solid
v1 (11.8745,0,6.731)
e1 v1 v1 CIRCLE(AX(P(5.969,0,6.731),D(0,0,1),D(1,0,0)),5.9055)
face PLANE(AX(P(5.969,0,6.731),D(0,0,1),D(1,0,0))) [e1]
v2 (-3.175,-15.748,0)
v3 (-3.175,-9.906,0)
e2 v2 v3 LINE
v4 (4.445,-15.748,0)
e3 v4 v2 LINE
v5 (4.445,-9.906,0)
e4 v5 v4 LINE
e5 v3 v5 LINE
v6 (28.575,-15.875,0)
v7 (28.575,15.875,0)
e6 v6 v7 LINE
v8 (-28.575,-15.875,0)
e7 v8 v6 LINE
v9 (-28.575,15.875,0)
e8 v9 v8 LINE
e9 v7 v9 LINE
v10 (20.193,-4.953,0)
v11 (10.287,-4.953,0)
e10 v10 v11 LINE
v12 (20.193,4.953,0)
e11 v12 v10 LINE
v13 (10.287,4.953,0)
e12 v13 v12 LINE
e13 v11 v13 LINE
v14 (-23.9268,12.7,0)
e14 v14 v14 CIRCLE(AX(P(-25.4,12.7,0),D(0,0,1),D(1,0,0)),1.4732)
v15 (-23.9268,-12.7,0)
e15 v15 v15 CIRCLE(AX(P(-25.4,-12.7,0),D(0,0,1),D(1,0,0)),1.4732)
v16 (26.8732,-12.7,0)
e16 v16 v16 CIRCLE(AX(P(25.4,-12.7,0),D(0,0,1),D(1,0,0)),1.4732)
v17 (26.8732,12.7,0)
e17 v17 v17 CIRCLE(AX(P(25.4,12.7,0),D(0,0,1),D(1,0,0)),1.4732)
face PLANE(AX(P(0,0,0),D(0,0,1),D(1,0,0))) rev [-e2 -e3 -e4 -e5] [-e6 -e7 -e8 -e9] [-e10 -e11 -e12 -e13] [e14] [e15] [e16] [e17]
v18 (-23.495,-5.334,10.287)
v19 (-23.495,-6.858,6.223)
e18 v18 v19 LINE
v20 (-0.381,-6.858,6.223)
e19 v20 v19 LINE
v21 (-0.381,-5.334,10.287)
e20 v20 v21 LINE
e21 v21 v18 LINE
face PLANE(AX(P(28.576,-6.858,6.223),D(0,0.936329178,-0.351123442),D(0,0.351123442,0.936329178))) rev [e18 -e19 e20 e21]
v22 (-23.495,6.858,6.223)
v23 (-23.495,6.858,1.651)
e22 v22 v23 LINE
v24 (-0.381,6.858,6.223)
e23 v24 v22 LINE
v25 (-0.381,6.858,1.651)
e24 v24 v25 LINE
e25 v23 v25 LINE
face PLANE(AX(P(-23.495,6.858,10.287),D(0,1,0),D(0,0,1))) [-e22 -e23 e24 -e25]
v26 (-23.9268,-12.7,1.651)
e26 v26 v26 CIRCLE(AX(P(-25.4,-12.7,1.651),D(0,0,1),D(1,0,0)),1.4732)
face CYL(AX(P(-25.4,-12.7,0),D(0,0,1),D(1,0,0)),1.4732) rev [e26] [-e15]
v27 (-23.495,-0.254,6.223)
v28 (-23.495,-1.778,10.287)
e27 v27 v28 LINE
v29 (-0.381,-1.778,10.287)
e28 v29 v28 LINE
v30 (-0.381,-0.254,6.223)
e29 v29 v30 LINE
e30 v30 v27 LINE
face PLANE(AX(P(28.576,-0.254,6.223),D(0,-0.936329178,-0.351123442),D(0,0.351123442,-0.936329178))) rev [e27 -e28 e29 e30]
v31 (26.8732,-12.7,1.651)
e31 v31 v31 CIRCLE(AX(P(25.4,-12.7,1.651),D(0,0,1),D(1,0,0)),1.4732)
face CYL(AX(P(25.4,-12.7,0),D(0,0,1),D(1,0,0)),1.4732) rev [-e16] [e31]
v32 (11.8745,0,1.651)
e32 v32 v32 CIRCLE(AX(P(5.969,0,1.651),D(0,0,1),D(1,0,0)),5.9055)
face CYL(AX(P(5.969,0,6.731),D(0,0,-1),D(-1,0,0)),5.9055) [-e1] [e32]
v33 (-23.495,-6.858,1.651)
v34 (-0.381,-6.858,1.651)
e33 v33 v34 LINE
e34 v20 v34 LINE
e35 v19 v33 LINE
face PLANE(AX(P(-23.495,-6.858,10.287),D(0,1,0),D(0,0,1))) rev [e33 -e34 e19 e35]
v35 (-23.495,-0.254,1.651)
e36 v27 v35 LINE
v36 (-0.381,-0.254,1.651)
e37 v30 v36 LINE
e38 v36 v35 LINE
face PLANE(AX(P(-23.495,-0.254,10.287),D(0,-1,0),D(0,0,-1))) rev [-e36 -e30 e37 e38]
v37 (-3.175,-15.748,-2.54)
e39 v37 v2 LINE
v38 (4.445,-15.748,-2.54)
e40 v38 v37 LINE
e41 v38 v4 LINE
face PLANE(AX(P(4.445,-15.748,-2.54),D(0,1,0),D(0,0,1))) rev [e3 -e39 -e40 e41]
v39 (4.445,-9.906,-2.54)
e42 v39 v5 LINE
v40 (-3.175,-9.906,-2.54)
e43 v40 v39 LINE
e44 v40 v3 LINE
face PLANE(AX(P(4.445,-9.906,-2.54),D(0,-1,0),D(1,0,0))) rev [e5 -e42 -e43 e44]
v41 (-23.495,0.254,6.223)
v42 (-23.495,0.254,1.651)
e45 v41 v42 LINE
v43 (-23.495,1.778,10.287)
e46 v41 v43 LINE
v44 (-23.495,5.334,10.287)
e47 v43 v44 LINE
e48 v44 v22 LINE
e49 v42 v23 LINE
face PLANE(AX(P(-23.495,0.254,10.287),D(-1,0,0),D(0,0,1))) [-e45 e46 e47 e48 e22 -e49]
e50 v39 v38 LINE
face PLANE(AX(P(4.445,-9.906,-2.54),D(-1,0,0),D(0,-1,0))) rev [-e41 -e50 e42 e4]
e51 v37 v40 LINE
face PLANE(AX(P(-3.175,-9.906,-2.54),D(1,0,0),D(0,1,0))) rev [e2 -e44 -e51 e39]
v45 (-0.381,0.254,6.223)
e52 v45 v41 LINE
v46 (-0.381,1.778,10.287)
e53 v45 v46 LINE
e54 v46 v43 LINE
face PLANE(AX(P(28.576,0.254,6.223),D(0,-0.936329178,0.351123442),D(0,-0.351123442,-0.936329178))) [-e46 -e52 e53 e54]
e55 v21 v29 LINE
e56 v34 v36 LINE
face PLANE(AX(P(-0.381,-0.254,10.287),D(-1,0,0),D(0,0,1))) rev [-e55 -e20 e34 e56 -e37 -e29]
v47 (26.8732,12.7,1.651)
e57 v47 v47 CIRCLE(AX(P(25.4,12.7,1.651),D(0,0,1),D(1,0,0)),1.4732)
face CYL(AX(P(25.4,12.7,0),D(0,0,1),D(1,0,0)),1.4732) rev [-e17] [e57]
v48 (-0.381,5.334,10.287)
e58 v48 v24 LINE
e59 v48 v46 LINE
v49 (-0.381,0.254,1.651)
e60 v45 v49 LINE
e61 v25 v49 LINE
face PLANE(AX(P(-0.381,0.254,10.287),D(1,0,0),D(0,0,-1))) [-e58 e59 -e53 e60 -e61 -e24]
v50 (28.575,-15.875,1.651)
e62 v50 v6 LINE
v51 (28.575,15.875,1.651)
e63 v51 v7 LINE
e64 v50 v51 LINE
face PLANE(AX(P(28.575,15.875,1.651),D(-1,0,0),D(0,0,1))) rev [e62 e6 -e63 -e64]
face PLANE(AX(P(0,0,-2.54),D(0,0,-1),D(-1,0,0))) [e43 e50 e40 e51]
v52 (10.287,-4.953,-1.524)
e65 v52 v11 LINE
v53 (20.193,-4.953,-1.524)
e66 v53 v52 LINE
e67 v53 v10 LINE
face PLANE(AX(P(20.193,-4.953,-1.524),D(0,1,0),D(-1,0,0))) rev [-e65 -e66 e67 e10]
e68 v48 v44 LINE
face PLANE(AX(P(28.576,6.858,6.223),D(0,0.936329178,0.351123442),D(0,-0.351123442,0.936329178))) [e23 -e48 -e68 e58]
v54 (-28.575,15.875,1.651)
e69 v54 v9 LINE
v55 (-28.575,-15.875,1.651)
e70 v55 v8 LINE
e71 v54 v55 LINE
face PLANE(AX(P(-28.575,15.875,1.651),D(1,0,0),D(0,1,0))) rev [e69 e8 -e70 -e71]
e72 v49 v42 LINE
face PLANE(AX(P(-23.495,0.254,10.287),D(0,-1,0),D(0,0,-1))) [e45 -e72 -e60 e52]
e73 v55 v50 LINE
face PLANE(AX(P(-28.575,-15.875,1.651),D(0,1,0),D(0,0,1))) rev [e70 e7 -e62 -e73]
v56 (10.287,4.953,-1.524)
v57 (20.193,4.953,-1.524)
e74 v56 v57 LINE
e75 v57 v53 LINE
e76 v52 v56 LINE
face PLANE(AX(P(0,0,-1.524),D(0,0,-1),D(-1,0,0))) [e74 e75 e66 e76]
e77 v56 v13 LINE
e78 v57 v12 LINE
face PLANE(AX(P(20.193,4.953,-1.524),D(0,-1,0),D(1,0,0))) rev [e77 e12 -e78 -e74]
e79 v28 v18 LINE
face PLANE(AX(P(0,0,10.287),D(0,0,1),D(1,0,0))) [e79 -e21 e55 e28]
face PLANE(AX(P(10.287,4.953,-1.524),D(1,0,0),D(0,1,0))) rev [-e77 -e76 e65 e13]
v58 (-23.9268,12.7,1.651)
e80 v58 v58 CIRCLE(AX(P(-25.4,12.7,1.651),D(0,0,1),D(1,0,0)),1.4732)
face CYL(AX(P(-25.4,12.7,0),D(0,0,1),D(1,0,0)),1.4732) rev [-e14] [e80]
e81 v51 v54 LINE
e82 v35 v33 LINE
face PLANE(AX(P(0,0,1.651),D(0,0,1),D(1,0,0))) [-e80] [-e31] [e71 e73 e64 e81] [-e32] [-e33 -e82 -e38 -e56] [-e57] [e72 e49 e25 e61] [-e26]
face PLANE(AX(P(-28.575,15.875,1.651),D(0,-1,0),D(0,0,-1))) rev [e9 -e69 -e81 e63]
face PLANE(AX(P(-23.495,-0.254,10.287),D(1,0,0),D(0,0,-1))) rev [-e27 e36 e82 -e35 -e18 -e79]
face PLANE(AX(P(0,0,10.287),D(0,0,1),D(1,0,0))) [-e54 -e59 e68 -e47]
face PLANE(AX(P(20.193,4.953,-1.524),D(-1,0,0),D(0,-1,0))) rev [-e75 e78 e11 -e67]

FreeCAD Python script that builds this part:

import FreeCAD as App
import Part
import Sketcher
from FreeCAD import Vector
Q = App.Units.Quantity

doc = App.newDocument("Part")
body = doc.addObject("PartDesign::Body", "Body")

# Sketch on XY plane
sketch1 = body.newObject("Sketcher::SketchObject", "Sketch")
sketch1.AttachmentSupport = (doc.getObject("XY_Plane"), [""])
sketch1.MapMode = "FlatFace"
sketch1.addGeometry(Part.LineSegment(Vector(-29, 16, 0), Vector(-29, -16, 0)), False)
sketch1.addGeometry(Part.LineSegment(Vector(-29, -16, 0), Vector(29, -16, 0)), False)
sketch1.addGeometry(Part.LineSegment(Vector(29, -16, 0), Vector(29, 16, 0)), False)
sketch1.addGeometry(Part.LineSegment(Vector(29, 16, 0), Vector(-29, 16, 0)), False)
sketch1.addConstraint(Sketcher.Constraint("Coincident", 0, 2, 1, 1))
sketch1.addConstraint(Sketcher.Constraint("Coincident", 1, 2, 2, 1))
sketch1.addConstraint(Sketcher.Constraint("Coincident", 2, 2, 3, 1))
sketch1.addConstraint(Sketcher.Constraint("Coincident", 3, 2, 0, 1))
sketch1.addConstraint(Sketcher.Constraint("Vertical", 0))
sketch1.addConstraint(Sketcher.Constraint("Horizontal", 1))
sketch1.addConstraint(Sketcher.Constraint("Vertical", 2))
sketch1.addConstraint(Sketcher.Constraint("Horizontal", 3))
sketch1.addConstraint(Sketcher.Constraint("Symmetric", 0, 2, 2, 2, -1, 1))
sketch1.addConstraint(Sketcher.Constraint("DistanceX", 1, 1, 1, 2, Q("2.25 in")))
sketch1.addConstraint(Sketcher.Constraint("DistanceY", 0, 2, 0, 1, Q("1.25 in")))
pad1 = body.newObject("PartDesign::Pad", "Pad")
pad1.Profile = sketch1
pad1.Length = Q("0.065 in")

# Sketch on XY plane
sketch2 = body.newObject("Sketcher::SketchObject", "Sketch001")
sketch2.AttachmentSupport = (doc.getObject("XY_Plane"), [""])
sketch2.MapMode = "FlatFace"
sketch2.AttachmentOffset = App.Placement(Vector(0, 0, 0.065 * 25.4), App.Rotation())
sketch2.addGeometry(Part.Circle(Vector(25.4, -12.7, 0), Vector(0, 0, 1), 1.5), False)
sketch2.addGeometry(Part.Circle(Vector(25.4, 12.7, 0), Vector(0, 0, 1), 1.5), False)
sketch2.addGeometry(Part.Circle(Vector(-25.4, 12.7, 0), Vector(0, 0, 1), 1.5), False)
sketch2.addGeometry(Part.Circle(Vector(-25.4, -12.7, 0), Vector(0, 0, 1), 1.5), False)
sketch2.addConstraint(Sketcher.Constraint("Equal", 0, 1))
sketch2.addConstraint(Sketcher.Constraint("Equal", 1, 2))
sketch2.addConstraint(Sketcher.Constraint("Equal", 2, 3))
sketch2.addConstraint(Sketcher.Constraint("Symmetric", 0, 3, 2, 3, -1, 1))
sketch2.addConstraint(Sketcher.Constraint("Symmetric", 1, 3, 3, 3, -1, 1))
sketch2.addConstraint(Sketcher.Constraint("Symmetric", 1, 3, 2, 3, -2))
sketch2.addConstraint(Sketcher.Constraint("Diameter", 0, Q("0.116 in")))
sketch2.addConstraint(Sketcher.Constraint("DistanceX", -1, 1, 0, 3, Q("1 in")))
sketch2.addConstraint(Sketcher.Constraint("DistanceY", 0, 3, 1, 3, Q("1 in")))
pocket1 = body.newObject("PartDesign::Pocket", "Pocket")
pocket1.Profile = sketch2
pocket1.Type = "ThroughAll"

# Sketch on XY plane
sketch3 = body.newObject("Sketcher::SketchObject", "Sketch002")
sketch3.AttachmentSupport = (doc.getObject("XY_Plane"), [""])
sketch3.MapMode = "FlatFace"
sketch3.AttachmentOffset = App.Placement(Vector(0, 0, 0.065 * 25.4), App.Rotation())
sketch3.addGeometry(Part.LineSegment(Vector(-23, 0, 0), Vector(-23, -7, 0)), False)
sketch3.addGeometry(Part.LineSegment(Vector(-23, -7, 0), Vector(0, -7, 0)), False)
sketch3.addGeometry(Part.LineSegment(Vector(0, -7, 0), Vector(0, 0, 0)), False)
sketch3.addGeometry(Part.LineSegment(Vector(0, 0, 0), Vector(-23, 0, 0)), False)
sketch3.addConstraint(Sketcher.Constraint("Coincident", 0, 2, 1, 1))
sketch3.addConstraint(Sketcher.Constraint("Coincident", 1, 2, 2, 1))
sketch3.addConstraint(Sketcher.Constraint("Coincident", 2, 2, 3, 1))
sketch3.addConstraint(Sketcher.Constraint("Coincident", 3, 2, 0, 1))
sketch3.addConstraint(Sketcher.Constraint("Vertical", 0))
sketch3.addConstraint(Sketcher.Constraint("Horizontal", 1))
sketch3.addConstraint(Sketcher.Constraint("Vertical", 2))
sketch3.addConstraint(Sketcher.Constraint("Horizontal", 3))
sketch3.addConstraint(Sketcher.Constraint("DistanceX", 1, 1, 1, 2, Q("0.91 in")))
sketch3.addConstraint(Sketcher.Constraint("DistanceY", 0, 2, 0, 1, Q("0.26 in")))
sketch3.addConstraint(Sketcher.Constraint("DistanceY", 0, 2, -1, 1, Q("0.27 in")))
sketch3.addConstraint(Sketcher.Constraint("DistanceX", 0, 2, -1, 1, Q("0.925 in")))
pad2 = body.newObject("PartDesign::Pad", "Pad001")
pad2.Profile = sketch3
pad2.Length = Q("0.34 in")

# Sketch on YZ plane
sketch4 = body.newObject("Sketcher::SketchObject", "Sketch003")
sketch4.AttachmentSupport = (doc.getObject("YZ_Plane"), [""])
sketch4.MapMode = "FlatFace"
sketch4.AttachmentOffset = App.Placement(Vector(0, 0, -0.925 * 25.4), App.Rotation())
sketch4.addGeometry(Part.LineSegment(Vector(-5.3, 10.3, 0), Vector(-6.9, 6.2, 0)), False)
sketch4.addGeometry(Part.LineSegment(Vector(-6.9, 6.2, 0), Vector(-6.9, 10.3, 0)), False)
sketch4.addGeometry(Part.LineSegment(Vector(-6.9, 10.3, 0), Vector(-5.3, 10.3, 0)), False)
sketch4.addGeometry(Part.LineSegment(Vector(-1.8, 10.3, 0), Vector(-0.3, 10.3, 0)), False)
sketch4.addGeometry(Part.LineSegment(Vector(-0.3, 10.3, 0), Vector(-0.3, 6.2, 0)), False)
sketch4.addGeometry(Part.LineSegment(Vector(-0.3, 6.2, 0), Vector(-1.8, 10.3, 0)), False)
sketch4.addConstraint(Sketcher.Constraint("Coincident", 0, 2, 1, 1))
sketch4.addConstraint(Sketcher.Constraint("Coincident", 1, 2, 2, 1))
sketch4.addConstraint(Sketcher.Constraint("Coincident", 2, 2, 0, 1))
sketch4.addConstraint(Sketcher.Constraint("Coincident", 3, 2, 4, 1))
sketch4.addConstraint(Sketcher.Constraint("Coincident", 4, 2, 5, 1))
sketch4.addConstraint(Sketcher.Constraint("Coincident", 5, 2, 3, 1))
sketch4.addConstraint(Sketcher.Constraint("Vertical", 1))
sketch4.addConstraint(Sketcher.Constraint("Horizontal", 2))
sketch4.addConstraint(Sketcher.Constraint("Horizontal", 3))
sketch4.addConstraint(Sketcher.Constraint("Vertical", 4))
sketch4.addConstraint(Sketcher.Constraint("Horizontal", 2, 2, 3, 2))
sketch4.addConstraint(Sketcher.Constraint("Horizontal", 0, 2, 4, 2))
sketch4.addConstraint(Sketcher.Constraint("Equal", 2, 3))
sketch4.addConstraint(Sketcher.Constraint("DistanceX", 2, 1, 2, 2, Q("0.06 in")))
sketch4.addConstraint(Sketcher.Constraint("DistanceY", 1, 1, 1, 2, Q("0.16 in")))
sketch4.addConstraint(Sketcher.Constraint("DistanceX", 2, 2, 3, 2, Q("0.2 in")))
sketch4.addConstraint(Sketcher.Constraint("DistanceX", 0, 2, -1, 1, Q("0.27 in")))
sketch4.addConstraint(Sketcher.Constraint("DistanceY", -1, 1, 0, 2, Q("0.245 in")))
pocket2 = body.newObject("PartDesign::Pocket", "Pocket001")
pocket2.Profile = sketch4
pocket2.Length = Q("0.91 in")
pocket2.Reversed = True
doc.recompute()

mirrored = body.newObject("PartDesign::Mirrored", "Mirrored")
mirrored.Originals = [pad2, pocket2]
mirrored.MirrorPlane = (doc.getObject("XZ_Plane"), [""])
body.Tip = mirrored

# Sketch on XY plane
sketch5 = body.newObject("Sketcher::SketchObject", "Sketch004")
sketch5.AttachmentSupport = (doc.getObject("XY_Plane"), [""])
sketch5.MapMode = "FlatFace"
sketch5.addGeometry(Part.LineSegment(Vector(20, 5, 0), Vector(20, -5, 0)), False)
sketch5.addGeometry(Part.LineSegment(Vector(20, -5, 0), Vector(10, -5, 0)), False)
sketch5.addGeometry(Part.LineSegment(Vector(10, -5, 0), Vector(10, 5, 0)), False)
sketch5.addGeometry(Part.LineSegment(Vector(10, 5, 0), Vector(20, 5, 0)), False)
sketch5.addConstraint(Sketcher.Constraint("Coincident", 0, 2, 1, 1))
sketch5.addConstraint(Sketcher.Constraint("Coincident", 1, 2, 2, 1))
sketch5.addConstraint(Sketcher.Constraint("Coincident", 2, 2, 3, 1))
sketch5.addConstraint(Sketcher.Constraint("Coincident", 3, 2, 0, 1))
sketch5.addConstraint(Sketcher.Constraint("Vertical", 0))
sketch5.addConstraint(Sketcher.Constraint("Horizontal", 1))
sketch5.addConstraint(Sketcher.Constraint("Vertical", 2))
sketch5.addConstraint(Sketcher.Constraint("Horizontal", 3))
sketch5.addConstraint(Sketcher.Constraint("Equal", 3, 0))
sketch5.addConstraint(Sketcher.Constraint("DistanceX", 1, 2, 1, 1, Q("0.39 in")))
sketch5.addConstraint(Sketcher.Constraint("DistanceX", -1, 1, 0, 2, Q("0.795 in")))
sketch5.addConstraint(Sketcher.Constraint("DistanceY", 0, 2, -1, 1, Q("0.195 in")))
pad3 = body.newObject("PartDesign::Pad", "Pad002")
pad3.Profile = sketch5
pad3.Length = Q("0.06 in")
pad3.Reversed = True

# Sketch on XY plane
sketch6 = body.newObject("Sketcher::SketchObject", "Sketch005")
sketch6.AttachmentSupport = (doc.getObject("XY_Plane"), [""])
sketch6.MapMode = "FlatFace"
sketch6.AttachmentOffset = App.Placement(Vector(0, 0, 0.065 * 25.4), App.Rotation())
sketch6.addGeometry(Part.Circle(Vector(6, 0, 0), Vector(0, 0, 1), 6), False)
sketch6.addConstraint(Sketcher.Constraint("PointOnObject", 0, 3, -1))
sketch6.addConstraint(Sketcher.Constraint("Diameter", 0, Q("0.465 in")))
sketch6.addConstraint(Sketcher.Constraint("DistanceX", -1, 1, 0, 3, Q("0.235 in")))
pad4 = body.newObject("PartDesign::Pad", "Pad003")
pad4.Profile = sketch6
pad4.Length = Q("0.2 in")

# Sketch on XY plane
sketch7 = body.newObject("Sketcher::SketchObject", "Sketch006")
sketch7.AttachmentSupport = (doc.getObject("XY_Plane"), [""])
sketch7.MapMode = "FlatFace"
sketch7.addGeometry(Part.LineSegment(Vector(4, -10, 0), Vector(4, -16, 0)), False)
sketch7.addGeometry(Part.LineSegment(Vector(4, -16, 0), Vector(-3, -16, 0)), False)
sketch7.addGeometry(Part.LineSegment(Vector(-3, -16, 0), Vector(-3, -10, 0)), False)
sketch7.addGeometry(Part.LineSegment(Vector(-3, -10, 0), Vector(4, -10, 0)), False)
sketch7.addConstraint(Sketcher.Constraint("Coincident", 0, 2, 1, 1))
sketch7.addConstraint(Sketcher.Constraint("Coincident", 1, 2, 2, 1))
sketch7.addConstraint(Sketcher.Constraint("Coincident", 2, 2, 3, 1))
sketch7.addConstraint(Sketcher.Constraint("Coincident", 3, 2, 0, 1))
sketch7.addConstraint(Sketcher.Constraint("Vertical", 0))
sketch7.addConstraint(Sketcher.Constraint("Horizontal", 1))
sketch7.addConstraint(Sketcher.Constraint("Vertical", 2))
sketch7.addConstraint(Sketcher.Constraint("Horizontal", 3))
sketch7.addConstraint(Sketcher.Constraint("DistanceX", 1, 2, 1, 1, Q("0.3 in")))
sketch7.addConstraint(Sketcher.Constraint("DistanceY", 0, 2, 0, 1, Q("0.23 in")))
sketch7.addConstraint(Sketcher.Constraint("DistanceY", 0, 2, -1, 1, Q("0.62 in")))
sketch7.addConstraint(Sketcher.Constraint("DistanceX", -1, 1, 0, 2, Q("0.175 in")))
pad5 = body.newObject("PartDesign::Pad", "Pad004")
pad5.Profile = sketch7
pad5.Length = Q("0.1 in")
pad5.Reversed = True

doc.recompute()
